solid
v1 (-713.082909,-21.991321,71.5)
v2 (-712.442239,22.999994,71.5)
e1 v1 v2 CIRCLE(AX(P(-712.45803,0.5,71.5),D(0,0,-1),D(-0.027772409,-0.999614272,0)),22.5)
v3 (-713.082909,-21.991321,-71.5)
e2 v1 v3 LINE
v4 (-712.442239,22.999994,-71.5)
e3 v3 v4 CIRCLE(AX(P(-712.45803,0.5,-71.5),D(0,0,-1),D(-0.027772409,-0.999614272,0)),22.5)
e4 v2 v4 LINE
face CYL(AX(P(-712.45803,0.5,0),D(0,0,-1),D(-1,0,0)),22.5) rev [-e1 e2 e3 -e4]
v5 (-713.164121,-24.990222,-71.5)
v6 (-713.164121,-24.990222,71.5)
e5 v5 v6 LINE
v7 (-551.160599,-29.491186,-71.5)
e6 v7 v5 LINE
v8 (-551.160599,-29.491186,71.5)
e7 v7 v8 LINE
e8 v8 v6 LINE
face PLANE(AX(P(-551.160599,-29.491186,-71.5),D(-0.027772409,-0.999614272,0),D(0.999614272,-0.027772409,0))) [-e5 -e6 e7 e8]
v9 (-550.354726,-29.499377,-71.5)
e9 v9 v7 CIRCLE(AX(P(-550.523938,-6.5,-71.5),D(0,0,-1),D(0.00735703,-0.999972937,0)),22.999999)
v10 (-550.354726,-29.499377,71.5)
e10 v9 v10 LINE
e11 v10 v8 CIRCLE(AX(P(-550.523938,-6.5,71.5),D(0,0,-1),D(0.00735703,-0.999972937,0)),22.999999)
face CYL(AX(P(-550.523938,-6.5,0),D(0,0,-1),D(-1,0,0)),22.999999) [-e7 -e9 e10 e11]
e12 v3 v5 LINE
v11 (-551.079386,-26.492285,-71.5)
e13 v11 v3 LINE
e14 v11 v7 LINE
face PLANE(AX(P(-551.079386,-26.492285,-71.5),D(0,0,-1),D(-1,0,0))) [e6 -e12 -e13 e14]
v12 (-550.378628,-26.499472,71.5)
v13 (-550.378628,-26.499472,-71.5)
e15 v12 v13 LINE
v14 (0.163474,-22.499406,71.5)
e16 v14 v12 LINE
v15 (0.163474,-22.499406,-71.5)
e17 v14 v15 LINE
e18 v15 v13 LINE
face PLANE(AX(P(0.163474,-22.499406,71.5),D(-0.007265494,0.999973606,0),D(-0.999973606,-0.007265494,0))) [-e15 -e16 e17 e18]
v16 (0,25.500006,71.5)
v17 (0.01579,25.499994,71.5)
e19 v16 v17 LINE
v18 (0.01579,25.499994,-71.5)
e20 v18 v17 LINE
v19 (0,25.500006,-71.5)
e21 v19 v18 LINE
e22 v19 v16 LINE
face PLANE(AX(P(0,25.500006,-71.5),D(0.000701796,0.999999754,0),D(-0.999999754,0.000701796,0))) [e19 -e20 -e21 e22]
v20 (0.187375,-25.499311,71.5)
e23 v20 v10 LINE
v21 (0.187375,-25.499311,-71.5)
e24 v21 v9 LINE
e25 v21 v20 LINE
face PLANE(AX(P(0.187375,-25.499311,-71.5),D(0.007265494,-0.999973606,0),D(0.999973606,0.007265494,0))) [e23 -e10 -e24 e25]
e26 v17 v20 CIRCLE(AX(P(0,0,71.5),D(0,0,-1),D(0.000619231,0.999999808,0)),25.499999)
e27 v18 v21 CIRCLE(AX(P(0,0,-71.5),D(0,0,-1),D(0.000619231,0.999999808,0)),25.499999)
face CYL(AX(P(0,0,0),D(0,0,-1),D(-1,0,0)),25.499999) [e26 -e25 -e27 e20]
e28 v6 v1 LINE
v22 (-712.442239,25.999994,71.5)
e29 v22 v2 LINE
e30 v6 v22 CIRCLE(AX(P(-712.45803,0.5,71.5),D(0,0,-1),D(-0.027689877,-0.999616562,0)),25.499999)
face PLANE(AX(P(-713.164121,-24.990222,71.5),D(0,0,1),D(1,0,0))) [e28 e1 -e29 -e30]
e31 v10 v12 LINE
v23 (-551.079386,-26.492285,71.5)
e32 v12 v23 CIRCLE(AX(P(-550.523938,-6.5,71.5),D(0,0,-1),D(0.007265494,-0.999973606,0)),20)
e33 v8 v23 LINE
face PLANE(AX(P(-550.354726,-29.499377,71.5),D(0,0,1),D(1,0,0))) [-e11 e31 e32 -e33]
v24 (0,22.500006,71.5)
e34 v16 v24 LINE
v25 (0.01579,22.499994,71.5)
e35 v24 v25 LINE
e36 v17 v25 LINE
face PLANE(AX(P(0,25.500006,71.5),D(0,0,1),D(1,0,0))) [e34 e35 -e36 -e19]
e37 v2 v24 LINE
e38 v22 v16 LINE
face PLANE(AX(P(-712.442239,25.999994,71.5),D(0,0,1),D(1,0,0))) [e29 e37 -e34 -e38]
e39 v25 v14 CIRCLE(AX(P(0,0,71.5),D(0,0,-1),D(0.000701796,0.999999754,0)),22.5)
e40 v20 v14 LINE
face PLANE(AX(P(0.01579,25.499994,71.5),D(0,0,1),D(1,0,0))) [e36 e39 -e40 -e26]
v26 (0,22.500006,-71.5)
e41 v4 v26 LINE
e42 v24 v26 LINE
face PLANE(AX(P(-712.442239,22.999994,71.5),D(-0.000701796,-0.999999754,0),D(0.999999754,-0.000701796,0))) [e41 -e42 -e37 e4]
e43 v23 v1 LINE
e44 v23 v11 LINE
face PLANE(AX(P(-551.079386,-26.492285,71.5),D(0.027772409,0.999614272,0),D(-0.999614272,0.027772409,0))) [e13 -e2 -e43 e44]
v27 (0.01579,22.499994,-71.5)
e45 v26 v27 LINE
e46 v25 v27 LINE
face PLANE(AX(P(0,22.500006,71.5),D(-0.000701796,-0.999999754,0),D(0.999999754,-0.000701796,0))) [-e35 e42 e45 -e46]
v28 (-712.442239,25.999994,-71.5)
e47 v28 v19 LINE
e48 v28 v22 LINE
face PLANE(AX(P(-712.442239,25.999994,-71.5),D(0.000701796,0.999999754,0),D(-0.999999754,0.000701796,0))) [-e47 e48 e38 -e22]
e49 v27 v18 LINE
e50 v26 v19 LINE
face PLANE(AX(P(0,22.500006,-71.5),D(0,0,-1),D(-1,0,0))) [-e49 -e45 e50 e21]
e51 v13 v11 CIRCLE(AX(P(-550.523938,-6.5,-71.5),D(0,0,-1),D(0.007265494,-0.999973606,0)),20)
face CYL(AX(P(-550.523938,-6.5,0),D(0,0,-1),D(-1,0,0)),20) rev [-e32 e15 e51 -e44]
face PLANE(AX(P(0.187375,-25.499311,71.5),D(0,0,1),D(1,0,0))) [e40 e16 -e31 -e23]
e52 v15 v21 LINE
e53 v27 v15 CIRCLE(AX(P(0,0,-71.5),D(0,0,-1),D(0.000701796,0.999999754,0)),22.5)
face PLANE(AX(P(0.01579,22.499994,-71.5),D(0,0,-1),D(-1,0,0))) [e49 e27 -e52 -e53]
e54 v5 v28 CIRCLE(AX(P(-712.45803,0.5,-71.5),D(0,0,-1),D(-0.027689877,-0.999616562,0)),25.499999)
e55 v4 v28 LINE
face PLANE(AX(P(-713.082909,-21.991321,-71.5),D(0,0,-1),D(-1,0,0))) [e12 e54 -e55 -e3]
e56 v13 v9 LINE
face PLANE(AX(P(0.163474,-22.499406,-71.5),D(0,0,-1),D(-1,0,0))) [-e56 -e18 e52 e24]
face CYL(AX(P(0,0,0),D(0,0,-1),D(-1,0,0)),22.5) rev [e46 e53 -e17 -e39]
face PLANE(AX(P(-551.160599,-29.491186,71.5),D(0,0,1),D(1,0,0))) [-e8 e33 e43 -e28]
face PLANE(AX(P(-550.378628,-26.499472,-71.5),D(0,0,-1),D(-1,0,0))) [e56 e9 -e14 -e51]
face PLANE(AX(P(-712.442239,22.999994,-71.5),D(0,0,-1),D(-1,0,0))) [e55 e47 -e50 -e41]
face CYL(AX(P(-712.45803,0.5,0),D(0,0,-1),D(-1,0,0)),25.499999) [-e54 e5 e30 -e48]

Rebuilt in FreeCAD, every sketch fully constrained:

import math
import FreeCAD as App
import Part
import Sketcher
from FreeCAD import Vector


def add_polygon(sketch, points):
    """Adds a closed chain of lines whose ends are joined by coincident constraints."""
    first, n = sketch.GeometryCount, len(points)
    for a, b in zip(points, points[1:] + points[:1]):
        sketch.addGeometry(Part.LineSegment(App.Vector(*a, 0), App.Vector(*b, 0)), False)
    for i in range(n):
        sketch.addConstraint(Sketcher.Constraint("Coincident", first + i, 2, first + (i + 1) % n, 1))

doc = App.newDocument("Part")
params = doc.addObject("Spreadsheet::Sheet", "Params")
for row, (alias, value) in enumerate([
    ("sketch1_width", "3 mm"),
    ("sketch1_height", "143 mm"),
    ("sketch2_radius", "22.5 mm"),
], start=1):
    params.set(f"A{row}", alias)
    params.set(f"B{row}", "=" + value)
    params.setAlias(f"B{row}", alias)

body = doc.addObject("PartDesign::Body", "Body")

sketch1 = body.newObject("Sketcher::SketchObject", "Sketch")
sketch1.AttachmentSupport = (doc.getObject("YZ_Plane"), [""])
sketch1.MapMode = "FlatFace"
add_polygon(sketch1, [(25.5, 71.5), (22.5, 71.5), (22.5, -71.5), (25.5, -71.5)])
sketch1.addConstraint(Sketcher.Constraint("Horizontal", 0))
sketch1.addConstraint(Sketcher.Constraint("Vertical", 1))
sketch1.addConstraint(Sketcher.Constraint("Horizontal", 2))
sketch1.addConstraint(Sketcher.Constraint("Vertical", 3))
sketch1.addConstraint(Sketcher.Constraint("DistanceX", 0, 2, 0, 1, 3.0))
sketch1.addConstraint(Sketcher.Constraint("DistanceY", 1, 2, 1, 1, 143.0))
sketch1.addConstraint(Sketcher.Constraint("DistanceY", -1, 1, 0, 2, 71.5))
sketch1.addConstraint(Sketcher.Constraint("DistanceX", -1, 1, 0, 2, 22.500006))
sketch1.setExpression("Constraints[8]", "Params.sketch1_width")
sketch1.setExpression("Constraints[9]", "Params.sketch1_height")

sketch2 = body.newObject("Sketcher::SketchObject", "Sketch001")
sketch2.AttachmentSupport = (doc.getObject("XY_Plane"), [""])
sketch2.MapMode = "FlatFace"
sketch2.addGeometry(Part.LineSegment(Vector(0.2, -22.5, 0), Vector(-550.4, -26.5, 0)), False)
sketch2.addGeometry(Part.ArcOfCircle(Part.Circle(Vector(-550.5, -6.5, 0), Vector(0, 0, 1), 20), math.radians(-91.59), math.radians(-89.58)), False)
sketch2.addGeometry(Part.LineSegment(Vector(-551.1, -26.5, 0), Vector(-713.1, -22, 0)), False)
sketch2.addGeometry(Part.ArcOfCircle(Part.Circle(Vector(-712.5, 0.5, 0), Vector(0, 0, 1), 22.5), math.radians(90), math.radians(268)), False)
sketch2.addGeometry(Part.LineSegment(Vector(-712.4, 23, 0), Vector(0, 22.5, 0)), False)
sketch2.addGeometry(Part.ArcOfCircle(Part.Circle(Vector(0, 0, 0), Vector(0, 0, 1), 22.5), math.radians(-90), math.radians(90)), False)
sketch2.addConstraint(Sketcher.Constraint("Tangent", 0, 2, 1, 2))
sketch2.addConstraint(Sketcher.Constraint("Tangent", 1, 1, 2, 1))
sketch2.addConstraint(Sketcher.Constraint("Tangent", 2, 2, 3, 2))
sketch2.addConstraint(Sketcher.Constraint("Tangent", 3, 1, 4, 1))
sketch2.addConstraint(Sketcher.Constraint("Tangent", 4, 2, 5, 2))
sketch2.addConstraint(Sketcher.Constraint("Tangent", 5, 1, 0, 1))
sketch2.addConstraint(Sketcher.Constraint("Coincident", 5, 3, -1, 1))
sketch2.addConstraint(Sketcher.Constraint("Equal", 3, 5))
sketch2.addConstraint(Sketcher.Constraint("Radius", 3, 22.5))
sketch2.addConstraint(Sketcher.Constraint("DistanceY", -1, 1, 3, 3, 0.5))
sketch2.addConstraint(Sketcher.Constraint("Radius", 1, 19.999998))
sketch2.addConstraint(Sketcher.Constraint("DistanceX", 3, 3, 0, 2, 162.079402))
sketch2.addConstraint(Sketcher.Constraint("DistanceX", 0, 2, 5, 1, 550.542101))
sketch2.addConstraint(Sketcher.Constraint("DistanceX", 3, 3, -1, 1, 712.45803))
sketch2.setExpression("Constraints[8]", "Params.sketch2_radius")
doc.recompute()

additivepipe = body.newObject("PartDesign::AdditivePipe", "AdditivePipe")
additivepipe.Profile = sketch1
additivepipe.Spine = (sketch2, ["Edge1", "Edge2", "Edge3", "Edge4", "Edge5", "Edge6"])

doc.recompute()
